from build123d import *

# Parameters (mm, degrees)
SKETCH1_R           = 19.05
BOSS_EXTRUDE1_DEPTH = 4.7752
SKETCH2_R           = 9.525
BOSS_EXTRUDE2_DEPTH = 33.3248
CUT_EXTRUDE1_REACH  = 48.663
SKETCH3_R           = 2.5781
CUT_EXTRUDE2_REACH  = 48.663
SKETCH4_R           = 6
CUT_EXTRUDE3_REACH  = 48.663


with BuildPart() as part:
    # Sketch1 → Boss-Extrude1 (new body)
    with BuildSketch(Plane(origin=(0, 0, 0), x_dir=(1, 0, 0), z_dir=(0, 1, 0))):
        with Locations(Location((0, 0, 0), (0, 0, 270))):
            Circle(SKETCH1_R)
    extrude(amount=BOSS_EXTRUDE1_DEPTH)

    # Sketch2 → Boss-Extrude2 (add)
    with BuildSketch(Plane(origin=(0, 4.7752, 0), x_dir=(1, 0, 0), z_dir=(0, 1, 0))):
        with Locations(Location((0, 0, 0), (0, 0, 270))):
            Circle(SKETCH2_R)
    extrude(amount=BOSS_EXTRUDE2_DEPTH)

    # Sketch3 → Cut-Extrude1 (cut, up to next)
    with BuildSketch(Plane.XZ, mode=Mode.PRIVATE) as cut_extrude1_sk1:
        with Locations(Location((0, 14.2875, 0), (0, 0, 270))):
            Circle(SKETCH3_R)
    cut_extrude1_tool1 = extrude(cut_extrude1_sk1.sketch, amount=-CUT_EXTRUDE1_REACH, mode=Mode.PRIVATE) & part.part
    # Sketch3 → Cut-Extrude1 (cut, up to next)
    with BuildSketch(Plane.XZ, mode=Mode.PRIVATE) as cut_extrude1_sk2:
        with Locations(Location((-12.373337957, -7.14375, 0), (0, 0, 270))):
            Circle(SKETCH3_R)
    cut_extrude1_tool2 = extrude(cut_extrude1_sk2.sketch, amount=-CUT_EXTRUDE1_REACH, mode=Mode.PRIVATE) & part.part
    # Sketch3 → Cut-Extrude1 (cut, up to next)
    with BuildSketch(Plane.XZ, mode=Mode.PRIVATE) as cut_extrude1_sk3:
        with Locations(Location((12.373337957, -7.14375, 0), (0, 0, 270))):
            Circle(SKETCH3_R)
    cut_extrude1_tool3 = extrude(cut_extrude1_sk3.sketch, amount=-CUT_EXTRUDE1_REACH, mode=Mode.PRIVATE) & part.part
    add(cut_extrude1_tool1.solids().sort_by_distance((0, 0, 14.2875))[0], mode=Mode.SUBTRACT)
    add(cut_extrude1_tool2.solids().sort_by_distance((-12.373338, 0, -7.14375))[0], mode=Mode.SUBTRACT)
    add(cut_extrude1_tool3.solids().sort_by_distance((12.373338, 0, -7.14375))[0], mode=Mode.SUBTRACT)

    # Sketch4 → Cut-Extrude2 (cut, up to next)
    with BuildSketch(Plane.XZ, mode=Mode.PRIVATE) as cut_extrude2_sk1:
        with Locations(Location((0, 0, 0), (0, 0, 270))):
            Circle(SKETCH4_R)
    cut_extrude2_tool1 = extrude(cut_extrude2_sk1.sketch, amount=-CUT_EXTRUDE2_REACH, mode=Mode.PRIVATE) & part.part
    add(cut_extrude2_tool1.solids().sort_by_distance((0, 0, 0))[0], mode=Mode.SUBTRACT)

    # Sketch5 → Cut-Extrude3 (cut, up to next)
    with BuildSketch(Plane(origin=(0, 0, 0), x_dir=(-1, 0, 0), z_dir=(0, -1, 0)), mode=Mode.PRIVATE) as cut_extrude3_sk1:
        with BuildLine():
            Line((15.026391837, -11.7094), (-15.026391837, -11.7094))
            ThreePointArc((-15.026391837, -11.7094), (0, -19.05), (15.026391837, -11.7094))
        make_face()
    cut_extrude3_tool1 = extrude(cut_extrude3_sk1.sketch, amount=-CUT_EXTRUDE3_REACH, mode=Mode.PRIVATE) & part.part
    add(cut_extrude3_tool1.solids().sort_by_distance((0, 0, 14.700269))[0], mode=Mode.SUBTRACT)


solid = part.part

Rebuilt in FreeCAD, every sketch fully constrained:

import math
import FreeCAD as App
import Part
import Sketcher
from FreeCAD import Vector
Q = App.Units.Quantity

doc = App.newDocument("Part")
params = doc.addObject("Spreadsheet::Sheet", "Params")
for row, (alias, value) in enumerate([
    ("sketch1_diameter", "1.5 in"),
    ("pad1_length", "0.188 in"),
    ("sketch2_diameter", "0.75 in"),
    ("pad2_length", "1.312 in"),
    ("sketch3_diameter", "0.203 in"),
    ("sketch4_diameter", "0.203 in"),
    ("sketch5_diameter", "0.203 in"),
    ("sketch7_radius", "0.75 in"),
    ("pocket5_length", "0.188 in"),
], start=1):
    params.set(f"A{row}", alias)
    params.set(f"B{row}", "=" + value)
    params.setAlias(f"B{row}", alias)

body = doc.addObject("PartDesign::Body", "Body")

sketch1 = doc.addObject("Sketcher::SketchObject", "Sketch")
body.addObject(sketch1)
sketch1.AttachmentSupport = (doc.XZ_Plane, [""])
sketch1.MapMode = "FlatFace"
sketch1.addGeometry(Part.Circle(Vector(0, 0, 0), Vector(0, 0, 1), 19), False)
sketch1.addConstraint([
    Sketcher.Constraint("Coincident", 0, 3, -1, 1),
    Sketcher.Constraint("Diameter", 0, Q("1.5 in")),
])
sketch1.setExpression("Constraints[1]", "Params.sketch1_diameter")
pad1 = doc.addObject("PartDesign::Pad", "Pad")
body.addObject(pad1)
pad1.Profile = sketch1
pad1.setExpression("Length", "Params.pad1_length")
pad1.Reversed = True

sketch2 = doc.addObject("Sketcher::SketchObject", "Sketch001")
body.addObject(sketch2)
sketch2.AttachmentSupport = (doc.XZ_Plane, [""])
sketch2.MapMode = "FlatFace"
sketch2.AttachmentOffset = App.Placement(Vector(0, 0, -0.188 * 25.4), App.Rotation())
sketch2.addGeometry(Part.Circle(Vector(0, 0, 0), Vector(0, 0, 1), 10), False)
sketch2.addConstraint([
    Sketcher.Constraint("Coincident", 0, 3, -1, 1),
    Sketcher.Constraint("Diameter", 0, Q("0.75 in")),
])
sketch2.setExpression("Constraints[1]", "Params.sketch2_diameter")
pad2 = doc.addObject("PartDesign::Pad", "Pad001")
body.addObject(pad2)
pad2.Profile = sketch2
pad2.setExpression("Length", "Params.pad2_length")
pad2.Reversed = True

sketch3 = doc.addObject("Sketcher::SketchObject", "Sketch002")
body.addObject(sketch3)
sketch3.AttachmentSupport = (doc.XZ_Plane, [""])
sketch3.MapMode = "FlatFace"
sketch3.addGeometry(Part.Circle(Vector(0, 14.3, 0), Vector(0, 0, 1), 2.6), False)
sketch3.addConstraint([
    Sketcher.Constraint("PointOnObject", 0, 3, -2),
    Sketcher.Constraint("Diameter", 0, Q("0.203 in")),
    Sketcher.Constraint("DistanceY", -1, 1, 0, 3, Q("0.5625 in")),
])
sketch3.setExpression("Constraints[1]", "Params.sketch3_diameter")
pocket1 = doc.addObject("PartDesign::Pocket", "Pocket")
body.addObject(pocket1)
pocket1.Profile = sketch3
pocket1.Type = "UpToFirst"

sketch4 = doc.addObject("Sketcher::SketchObject", "Sketch003")
body.addObject(sketch4)
sketch4.AttachmentSupport = (doc.XZ_Plane, [""])
sketch4.MapMode = "FlatFace"
sketch4.addGeometry(Part.Circle(Vector(-12.4, -7.1, 0), Vector(0, 0, 1), 2.6), False)
sketch4.addConstraint([
    Sketcher.Constraint("Diameter", 0, Q("0.203 in")),
    Sketcher.Constraint("DistanceY", 0, 3, -1, 1, Q("0.28125 in")),
    Sketcher.Constraint("DistanceX", 0, 3, -1, 1, Q("12.373338 mm")),
])
sketch4.setExpression("Constraints[0]", "Params.sketch4_diameter")
pocket2 = doc.addObject("PartDesign::Pocket", "Pocket001")
body.addObject(pocket2)
pocket2.Profile = sketch4
pocket2.Type = "UpToFirst"

sketch5 = doc.addObject("Sketcher::SketchObject", "Sketch004")
body.addObject(sketch5)
sketch5.AttachmentSupport = (doc.XZ_Plane, [""])
sketch5.MapMode = "FlatFace"
sketch5.addGeometry(Part.Circle(Vector(12.4, -7.1, 0), Vector(0, 0, 1), 2.6), False)
sketch5.addConstraint([
    Sketcher.Constraint("Diameter", 0, Q("0.203 in")),
    Sketcher.Constraint("DistanceY", 0, 3, -1, 1, Q("0.28125 in")),
    Sketcher.Constraint("DistanceX", -1, 1, 0, 3, Q("12.373338 mm")),
])
sketch5.setExpression("Constraints[0]", "Params.sketch5_diameter")
pocket3 = doc.addObject("PartDesign::Pocket", "Pocket002")
body.addObject(pocket3)
pocket3.Profile = sketch5
pocket3.Type = "UpToFirst"

sketch6 = doc.addObject("Sketcher::SketchObject", "Sketch005")
body.addObject(sketch6)
sketch6.AttachmentSupport = (doc.XZ_Plane, [""])
sketch6.MapMode = "FlatFace"
sketch6.addGeometry(Part.Circle(Vector(0, 0, 0), Vector(0, 0, 1), 6), False)
sketch6.addConstraint([
    Sketcher.Constraint("Coincident", 0, 3, -1, 1),
    Sketcher.Constraint("Diameter", 0, Q("12 mm")),
])
pocket4 = doc.addObject("PartDesign::Pocket", "Pocket003")
body.addObject(pocket4)
pocket4.Profile = sketch6
pocket4.Type = "UpToFirst"

sketch7 = doc.addObject("Sketcher::SketchObject", "Sketch006")
body.addObject(sketch7)
sketch7.AttachmentSupport = (doc.XZ_Plane, [""])
sketch7.MapMode = "FlatFace"
sketch7.addGeometry([
    Part.LineSegment(Vector(-15, 12, 0), Vector(15, 12, 0)),
    Part.ArcOfCircle(Part.Circle(Vector(0, 0, 0), Vector(0, 0, 1), 19), math.radians(38), math.radians(142)),
], False)
sketch7.addConstraint([
    Sketcher.Constraint("Coincident", 0, 1, 1, 2),
    Sketcher.Constraint("Coincident", 1, 1, 0, 2),
    Sketcher.Constraint("Horizontal", 0),
    Sketcher.Constraint("Coincident", 1, 3, -1, 1),
    Sketcher.Constraint("Radius", 1, Q("0.75 in")),
    Sketcher.Constraint("DistanceY", -1, 1, 0, 1, Q("0.461 in")),
])
sketch7.setExpression("Constraints[4]", "Params.sketch7_radius")
pocket5 = doc.addObject("PartDesign::Pocket", "Pocket004")
body.addObject(pocket5)
pocket5.Profile = sketch7
pocket5.setExpression("Length", "Params.pocket5_length")

doc.recompute()
